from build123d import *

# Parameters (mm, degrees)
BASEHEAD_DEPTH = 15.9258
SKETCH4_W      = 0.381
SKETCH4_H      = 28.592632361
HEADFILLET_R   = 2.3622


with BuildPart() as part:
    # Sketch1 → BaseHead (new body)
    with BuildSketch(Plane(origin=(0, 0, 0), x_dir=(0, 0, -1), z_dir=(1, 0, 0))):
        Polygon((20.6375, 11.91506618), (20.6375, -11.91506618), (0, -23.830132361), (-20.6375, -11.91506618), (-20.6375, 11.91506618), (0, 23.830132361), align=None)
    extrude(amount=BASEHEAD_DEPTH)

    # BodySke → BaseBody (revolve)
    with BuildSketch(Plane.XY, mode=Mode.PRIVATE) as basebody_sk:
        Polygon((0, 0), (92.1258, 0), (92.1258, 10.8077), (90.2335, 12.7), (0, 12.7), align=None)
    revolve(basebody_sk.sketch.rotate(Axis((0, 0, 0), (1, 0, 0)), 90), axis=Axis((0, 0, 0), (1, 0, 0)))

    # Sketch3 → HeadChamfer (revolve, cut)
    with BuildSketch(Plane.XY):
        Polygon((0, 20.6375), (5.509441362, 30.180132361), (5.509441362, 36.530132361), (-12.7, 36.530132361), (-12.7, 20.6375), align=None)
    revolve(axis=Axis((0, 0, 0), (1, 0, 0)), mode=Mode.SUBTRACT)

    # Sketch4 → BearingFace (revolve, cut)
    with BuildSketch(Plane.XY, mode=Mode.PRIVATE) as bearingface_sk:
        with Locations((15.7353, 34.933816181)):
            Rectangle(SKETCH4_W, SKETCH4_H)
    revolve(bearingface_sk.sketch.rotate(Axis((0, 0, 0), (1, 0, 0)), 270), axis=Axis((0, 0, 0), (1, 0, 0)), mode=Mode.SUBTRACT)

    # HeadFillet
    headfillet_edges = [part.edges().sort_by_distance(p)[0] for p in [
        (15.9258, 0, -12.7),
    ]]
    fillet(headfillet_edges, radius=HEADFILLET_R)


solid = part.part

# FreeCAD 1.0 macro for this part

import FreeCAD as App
import Part
import Sketcher

V = App.Vector
Q = App.Units.Quantity


def edges_at(feature, points):
    """Names of the edges that pass closest to the given points."""
    edges = feature.Shape.Edges
    near = lambda p: min(range(len(edges)), key=lambda i: edges[i].distToShape(Part.Vertex(*p))[0])
    return sorted({f"Edge{near(p) + 1}" for p in points})


def add_polygon(sketch, points):
    """Adds a closed chain of lines whose ends are joined by coincident constraints."""
    first, n = sketch.GeometryCount, len(points)
    for a, b in zip(points, points[1:] + points[:1]):
        sketch.addGeometry(Part.LineSegment(App.Vector(*a, 0), App.Vector(*b, 0)), False)
    for i in range(n):
        sketch.addConstraint(Sketcher.Constraint("Coincident", first + i, 2, first + (i + 1) % n, 1))

doc = App.newDocument("Part")
body = doc.addObject("PartDesign::Body", "Body")

# Sketch on YZ plane
sketch1 = body.newObject("Sketcher::SketchObject", "Sketch")
sketch1.AttachmentSupport = (doc.getObject("YZ_Plane"), [""])
sketch1.MapMode = "FlatFace"
add_polygon(sketch1, [(-12, -21), (12, -21), (24, 0), (12, 21), (-12, 21), (-24, 0)])  # lines 0-5
sketch1.addConstraint(Sketcher.Constraint("Horizontal", 0))
sketch1.addConstraint(Sketcher.Constraint("Horizontal", 3))
sketch1.addConstraint(Sketcher.Constraint("Symmetric", 0, 2, 3, 2, -1, 1))
sketch1.addConstraint(Sketcher.Constraint("Symmetric", 1, 2, 4, 2, -1, 1))
sketch1.addConstraint(Sketcher.Constraint("PointOnObject", 1, 2, -1))
sketch1.addConstraint(Sketcher.Constraint("Parallel", 2, 5))
sketch1.addConstraint(Sketcher.Constraint("Vertical", 0, 2, 2, 2))
sketch1.addConstraint(Sketcher.Constraint("Angle", 1, Q("60 deg")))
sketch1.addConstraint(Sketcher.Constraint("DistanceY", 0, 2, -1, 1, Q("0.8125 in")))
sketch1.addConstraint(Sketcher.Constraint("DistanceX", 3, 2, 1, 2, Q("35.745199 mm")))
pad1 = body.newObject("PartDesign::Pad", "Pad")
pad1.Profile = sketch1
pad1.Length = Q("0.627 in")

# Sketch on XY plane
sketch2 = body.newObject("Sketcher::SketchObject", "Sketch001")
sketch2.AttachmentSupport = (doc.getObject("XY_Plane"), [""])
sketch2.MapMode = "FlatFace"
add_polygon(sketch2, [(0, 0), (92.1, 0), (92.1, 10.8), (90.2, 12.7), (0, 12.7)])  # lines 0-4
sketch2.addConstraint(Sketcher.Constraint("Horizontal", 0))
sketch2.addConstraint(Sketcher.Constraint("Vertical", 1))
sketch2.addConstraint(Sketcher.Constraint("Horizontal", 3))
sketch2.addConstraint(Sketcher.Constraint("Vertical", 4))
sketch2.addConstraint(Sketcher.Constraint("Coincident", 4, 2, -1, 1))
sketch2.addConstraint(Sketcher.Constraint("DistanceY", 4, 2, 4, 1, Q("0.5 in")))
sketch2.addConstraint(Sketcher.Constraint("Angle", 2, Q("135 deg")))
sketch2.addConstraint(Sketcher.Constraint("DistanceX", 0, 1, 0, 2, Q("3.627 in")))
sketch2.addConstraint(Sketcher.Constraint("DistanceX", 3, 2, 3, 1, Q("3.5525 in")))
revolution = body.newObject("PartDesign::Revolution", "Revolution")
revolution.Profile = sketch2
revolution.ReferenceAxis = (sketch2, ["H_Axis"])
revolution.Angle = 360

# Sketch on XY plane
sketch3 = body.newObject("Sketcher::SketchObject", "Sketch002")
sketch3.AttachmentSupport = (doc.getObject("XY_Plane"), [""])
sketch3.MapMode = "FlatFace"
add_polygon(sketch3, [(0, 21), (6, 30), (6, 37), (-13, 37), (-13, 21)])  # lines 0-4
sketch3.addConstraint(Sketcher.Constraint("Vertical", 1))
sketch3.addConstraint(Sketcher.Constraint("Horizontal", 2))
sketch3.addConstraint(Sketcher.Constraint("Vertical", 3))
sketch3.addConstraint(Sketcher.Constraint("Horizontal", 4))
sketch3.addConstraint(Sketcher.Constraint("PointOnObject", 4, 2, -2))
sketch3.addConstraint(Sketcher.Constraint("DistanceX", 4, 1, 4, 2, Q("0.5 in")))
sketch3.addConstraint(Sketcher.Constraint("Angle", 0, Q("60 deg")))
sketch3.addConstraint(Sketcher.Constraint("DistanceY", 1, 1, 1, 2, Q("0.25 in")))
sketch3.addConstraint(Sketcher.Constraint("DistanceY", -1, 1, 3, 2, Q("0.8125 in")))
sketch3.addConstraint(Sketcher.Constraint("DistanceX", 2, 2, 2, 1, Q("18.209441 mm")))
groove = body.newObject("PartDesign::Groove", "Groove")
groove.Profile = sketch3
groove.ReferenceAxis = (sketch3, ["H_Axis"])
groove.Angle = 360

# Sketch on XY plane
sketch4 = body.newObject("Sketcher::SketchObject", "Sketch003")
sketch4.AttachmentSupport = (doc.getObject("XY_Plane"), [""])
sketch4.MapMode = "FlatFace"
add_polygon(sketch4, [(15.54, 49.23), (15.54, 20.64), (15.93, 20.64), (15.93, 49.23)])  # lines 0-3
sketch4.addConstraint(Sketcher.Constraint("Vertical", 0))
sketch4.addConstraint(Sketcher.Constraint("Horizontal", 1))
sketch4.addConstraint(Sketcher.Constraint("Vertical", 2))
sketch4.addConstraint(Sketcher.Constraint("Horizontal", 3))
sketch4.addConstraint(Sketcher.Constraint("DistanceX", 1, 1, 1, 2, Q("0.015 in")))
sketch4.addConstraint(Sketcher.Constraint("DistanceX", -1, 1, 0, 2, Q("0.612 in")))
sketch4.addConstraint(Sketcher.Constraint("DistanceY", -1, 1, 0, 2, Q("0.8125 in")))
sketch4.addConstraint(Sketcher.Constraint("DistanceY", 0, 2, 0, 1, Q("28.592632 mm")))
groove2 = body.newObject("PartDesign::Groove", "Groove001")
groove2.Profile = sketch4
groove2.ReferenceAxis = (sketch4, ["H_Axis"])
groove2.Angle = 360
doc.recompute()

fillet = body.newObject("PartDesign::Fillet", "Fillet")
fillet.Base = (groove2, edges_at(groove2, [(15.926, 0, -12.7)]))
fillet.Radius = Q("0.093 in")

doc.recompute()
